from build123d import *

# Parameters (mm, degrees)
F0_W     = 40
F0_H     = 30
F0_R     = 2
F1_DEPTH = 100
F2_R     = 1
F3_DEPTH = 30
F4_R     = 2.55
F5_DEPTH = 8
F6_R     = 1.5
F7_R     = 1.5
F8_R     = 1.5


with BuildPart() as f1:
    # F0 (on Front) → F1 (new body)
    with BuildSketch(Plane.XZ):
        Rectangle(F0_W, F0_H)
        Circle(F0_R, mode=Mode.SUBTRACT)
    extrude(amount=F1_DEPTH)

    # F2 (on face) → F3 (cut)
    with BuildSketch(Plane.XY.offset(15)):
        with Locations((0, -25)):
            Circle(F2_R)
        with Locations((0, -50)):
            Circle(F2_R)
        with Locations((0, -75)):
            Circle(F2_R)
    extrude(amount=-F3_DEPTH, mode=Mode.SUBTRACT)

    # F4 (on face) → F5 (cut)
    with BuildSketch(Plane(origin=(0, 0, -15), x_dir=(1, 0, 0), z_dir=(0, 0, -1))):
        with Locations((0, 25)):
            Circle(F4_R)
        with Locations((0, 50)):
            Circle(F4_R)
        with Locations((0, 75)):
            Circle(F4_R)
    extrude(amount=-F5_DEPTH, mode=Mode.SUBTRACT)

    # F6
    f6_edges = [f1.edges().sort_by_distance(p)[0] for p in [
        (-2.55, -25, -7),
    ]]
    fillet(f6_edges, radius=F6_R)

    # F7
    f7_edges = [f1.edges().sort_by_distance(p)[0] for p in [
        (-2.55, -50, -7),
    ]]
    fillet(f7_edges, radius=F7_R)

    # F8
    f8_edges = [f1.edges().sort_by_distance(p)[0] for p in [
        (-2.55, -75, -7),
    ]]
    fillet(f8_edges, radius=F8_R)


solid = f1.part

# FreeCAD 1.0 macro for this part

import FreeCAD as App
import Part
import Sketcher
from FreeCAD import Vector
Q = App.Units.Quantity


def edges_at(feature, points):
    """Names of the edges that pass closest to the given points."""
    edges = feature.Shape.Edges
    near = lambda p: min(range(len(edges)), key=lambda i: edges[i].distToShape(Part.Vertex(*p))[0])
    return sorted({f"Edge{near(p) + 1}" for p in points})

doc = App.newDocument("Part")
body = doc.addObject("PartDesign::Body", "Body")

sketch1 = doc.addObject("Sketcher::SketchObject", "Sketch")
body.addObject(sketch1)
sketch1.AttachmentSupport = (doc.XZ_Plane, [""])
sketch1.MapMode = "FlatFace"
sketch1.addGeometry([
    Part.LineSegment(Vector(-20, 15, 0), Vector(-20, -15, 0)),
    Part.LineSegment(Vector(-20, -15, 0), Vector(20, -15, 0)),
    Part.LineSegment(Vector(20, -15, 0), Vector(20, 15, 0)),
    Part.LineSegment(Vector(20, 15, 0), Vector(-20, 15, 0)),
    Part.Circle(Vector(0, 0, 0), Vector(0, 0, 1), 2),
], False)
sketch1.addConstraint([
    Sketcher.Constraint("Coincident", 0, 2, 1, 1),
    Sketcher.Constraint("Coincident", 1, 2, 2, 1),
    Sketcher.Constraint("Coincident", 2, 2, 3, 1),
    Sketcher.Constraint("Coincident", 3, 2, 0, 1),
    Sketcher.Constraint("Vertical", 0),
    Sketcher.Constraint("Horizontal", 1),
    Sketcher.Constraint("Vertical", 2),
    Sketcher.Constraint("Horizontal", 3),
    Sketcher.Constraint("Coincident", 4, 3, -1, 1),
    Sketcher.Constraint("Symmetric", 0, 2, 2, 2, -1, 1),
    Sketcher.Constraint("Diameter", 4, Q("4 mm")),
    Sketcher.Constraint("DistanceX", 1, 1, 1, 2, Q("40 mm")),
    Sketcher.Constraint("DistanceY", 0, 2, 0, 1, Q("30 mm")),
])
pad1 = doc.addObject("PartDesign::Pad", "Pad")
body.addObject(pad1)
pad1.Profile = sketch1
pad1.Length = 100

sketch2 = doc.addObject("Sketcher::SketchObject", "Sketch001")
body.addObject(sketch2)
sketch2.AttachmentSupport = (doc.XY_Plane, [""])
sketch2.MapMode = "FlatFace"
sketch2.AttachmentOffset = App.Placement(Vector(0, 0, 15), App.Rotation())
sketch2.addGeometry([
    Part.Circle(Vector(0, -25, 0), Vector(0, 0, 1), 1),
    Part.Circle(Vector(0, -50, 0), Vector(0, 0, 1), 1),
    Part.Circle(Vector(0, -75, 0), Vector(0, 0, 1), 1),
], False)
sketch2.addConstraint([
    Sketcher.Constraint("Equal", 0, 1),
    Sketcher.Constraint("Equal", 1, 2),
    Sketcher.Constraint("PointOnObject", 0, 3, -2),
    Sketcher.Constraint("PointOnObject", 1, 3, -2),
    Sketcher.Constraint("PointOnObject", 2, 3, -2),
    Sketcher.Constraint("Diameter", 0, Q("2 mm")),
    Sketcher.Constraint("DistanceY", 0, 3, -1, 1, Q("25 mm")),
    Sketcher.Constraint("DistanceY", 1, 3, -1, 1, Q("50 mm")),
    Sketcher.Constraint("DistanceY", 2, 3, -1, 1, Q("75 mm")),
])
pocket1 = doc.addObject("PartDesign::Pocket", "Pocket")
body.addObject(pocket1)
pocket1.Profile = sketch2
pocket1.Length = 30

sketch3 = doc.addObject("Sketcher::SketchObject", "Sketch002")
body.addObject(sketch3)
sketch3.AttachmentSupport = (doc.XY_Plane, [""])
sketch3.MapMode = "FlatFace"
sketch3.AttachmentOffset = App.Placement(Vector(0, 0, -15), App.Rotation())
sketch3.addGeometry([
    Part.Circle(Vector(0, -25, 0), Vector(0, 0, 1), 2.55),
    Part.Circle(Vector(0, -50, 0), Vector(0, 0, 1), 2.55),
    Part.Circle(Vector(0, -75, 0), Vector(0, 0, 1), 2.55),
], False)
sketch3.addConstraint([
    Sketcher.Constraint("Equal", 0, 1),
    Sketcher.Constraint("Equal", 1, 2),
    Sketcher.Constraint("PointOnObject", 0, 3, -2),
    Sketcher.Constraint("PointOnObject", 1, 3, -2),
    Sketcher.Constraint("PointOnObject", 2, 3, -2),
    Sketcher.Constraint("Diameter", 0, Q("5.1 mm")),
    Sketcher.Constraint("DistanceY", 0, 3, -1, 1, Q("25 mm")),
    Sketcher.Constraint("DistanceY", 1, 3, -1, 1, Q("50 mm")),
    Sketcher.Constraint("DistanceY", 2, 3, -1, 1, Q("75 mm")),
])
pocket2 = doc.addObject("PartDesign::Pocket", "Pocket001")
body.addObject(pocket2)
pocket2.Profile = sketch3
pocket2.Length = 8
pocket2.Reversed = True
doc.recompute()

fillet = doc.addObject("PartDesign::Fillet", "Fillet")
body.addObject(fillet)
fillet.Base = (pocket2, edges_at(pocket2, [(-2.55, -25, -7)]))
fillet.Radius = 1.5
doc.recompute()

fillet2 = doc.addObject("PartDesign::Fillet", "Fillet001")
body.addObject(fillet2)
fillet2.Base = (fillet, edges_at(fillet, [(-2.55, -50, -7)]))
fillet2.Radius = 1.5
doc.recompute()

fillet3 = doc.addObject("PartDesign::Fillet", "Fillet002")
body.addObject(fillet3)
fillet3.Base = (fillet2, edges_at(fillet2, [(-2.55, -75, -7)]))
fillet3.Radius = 1.5

doc.recompute()
